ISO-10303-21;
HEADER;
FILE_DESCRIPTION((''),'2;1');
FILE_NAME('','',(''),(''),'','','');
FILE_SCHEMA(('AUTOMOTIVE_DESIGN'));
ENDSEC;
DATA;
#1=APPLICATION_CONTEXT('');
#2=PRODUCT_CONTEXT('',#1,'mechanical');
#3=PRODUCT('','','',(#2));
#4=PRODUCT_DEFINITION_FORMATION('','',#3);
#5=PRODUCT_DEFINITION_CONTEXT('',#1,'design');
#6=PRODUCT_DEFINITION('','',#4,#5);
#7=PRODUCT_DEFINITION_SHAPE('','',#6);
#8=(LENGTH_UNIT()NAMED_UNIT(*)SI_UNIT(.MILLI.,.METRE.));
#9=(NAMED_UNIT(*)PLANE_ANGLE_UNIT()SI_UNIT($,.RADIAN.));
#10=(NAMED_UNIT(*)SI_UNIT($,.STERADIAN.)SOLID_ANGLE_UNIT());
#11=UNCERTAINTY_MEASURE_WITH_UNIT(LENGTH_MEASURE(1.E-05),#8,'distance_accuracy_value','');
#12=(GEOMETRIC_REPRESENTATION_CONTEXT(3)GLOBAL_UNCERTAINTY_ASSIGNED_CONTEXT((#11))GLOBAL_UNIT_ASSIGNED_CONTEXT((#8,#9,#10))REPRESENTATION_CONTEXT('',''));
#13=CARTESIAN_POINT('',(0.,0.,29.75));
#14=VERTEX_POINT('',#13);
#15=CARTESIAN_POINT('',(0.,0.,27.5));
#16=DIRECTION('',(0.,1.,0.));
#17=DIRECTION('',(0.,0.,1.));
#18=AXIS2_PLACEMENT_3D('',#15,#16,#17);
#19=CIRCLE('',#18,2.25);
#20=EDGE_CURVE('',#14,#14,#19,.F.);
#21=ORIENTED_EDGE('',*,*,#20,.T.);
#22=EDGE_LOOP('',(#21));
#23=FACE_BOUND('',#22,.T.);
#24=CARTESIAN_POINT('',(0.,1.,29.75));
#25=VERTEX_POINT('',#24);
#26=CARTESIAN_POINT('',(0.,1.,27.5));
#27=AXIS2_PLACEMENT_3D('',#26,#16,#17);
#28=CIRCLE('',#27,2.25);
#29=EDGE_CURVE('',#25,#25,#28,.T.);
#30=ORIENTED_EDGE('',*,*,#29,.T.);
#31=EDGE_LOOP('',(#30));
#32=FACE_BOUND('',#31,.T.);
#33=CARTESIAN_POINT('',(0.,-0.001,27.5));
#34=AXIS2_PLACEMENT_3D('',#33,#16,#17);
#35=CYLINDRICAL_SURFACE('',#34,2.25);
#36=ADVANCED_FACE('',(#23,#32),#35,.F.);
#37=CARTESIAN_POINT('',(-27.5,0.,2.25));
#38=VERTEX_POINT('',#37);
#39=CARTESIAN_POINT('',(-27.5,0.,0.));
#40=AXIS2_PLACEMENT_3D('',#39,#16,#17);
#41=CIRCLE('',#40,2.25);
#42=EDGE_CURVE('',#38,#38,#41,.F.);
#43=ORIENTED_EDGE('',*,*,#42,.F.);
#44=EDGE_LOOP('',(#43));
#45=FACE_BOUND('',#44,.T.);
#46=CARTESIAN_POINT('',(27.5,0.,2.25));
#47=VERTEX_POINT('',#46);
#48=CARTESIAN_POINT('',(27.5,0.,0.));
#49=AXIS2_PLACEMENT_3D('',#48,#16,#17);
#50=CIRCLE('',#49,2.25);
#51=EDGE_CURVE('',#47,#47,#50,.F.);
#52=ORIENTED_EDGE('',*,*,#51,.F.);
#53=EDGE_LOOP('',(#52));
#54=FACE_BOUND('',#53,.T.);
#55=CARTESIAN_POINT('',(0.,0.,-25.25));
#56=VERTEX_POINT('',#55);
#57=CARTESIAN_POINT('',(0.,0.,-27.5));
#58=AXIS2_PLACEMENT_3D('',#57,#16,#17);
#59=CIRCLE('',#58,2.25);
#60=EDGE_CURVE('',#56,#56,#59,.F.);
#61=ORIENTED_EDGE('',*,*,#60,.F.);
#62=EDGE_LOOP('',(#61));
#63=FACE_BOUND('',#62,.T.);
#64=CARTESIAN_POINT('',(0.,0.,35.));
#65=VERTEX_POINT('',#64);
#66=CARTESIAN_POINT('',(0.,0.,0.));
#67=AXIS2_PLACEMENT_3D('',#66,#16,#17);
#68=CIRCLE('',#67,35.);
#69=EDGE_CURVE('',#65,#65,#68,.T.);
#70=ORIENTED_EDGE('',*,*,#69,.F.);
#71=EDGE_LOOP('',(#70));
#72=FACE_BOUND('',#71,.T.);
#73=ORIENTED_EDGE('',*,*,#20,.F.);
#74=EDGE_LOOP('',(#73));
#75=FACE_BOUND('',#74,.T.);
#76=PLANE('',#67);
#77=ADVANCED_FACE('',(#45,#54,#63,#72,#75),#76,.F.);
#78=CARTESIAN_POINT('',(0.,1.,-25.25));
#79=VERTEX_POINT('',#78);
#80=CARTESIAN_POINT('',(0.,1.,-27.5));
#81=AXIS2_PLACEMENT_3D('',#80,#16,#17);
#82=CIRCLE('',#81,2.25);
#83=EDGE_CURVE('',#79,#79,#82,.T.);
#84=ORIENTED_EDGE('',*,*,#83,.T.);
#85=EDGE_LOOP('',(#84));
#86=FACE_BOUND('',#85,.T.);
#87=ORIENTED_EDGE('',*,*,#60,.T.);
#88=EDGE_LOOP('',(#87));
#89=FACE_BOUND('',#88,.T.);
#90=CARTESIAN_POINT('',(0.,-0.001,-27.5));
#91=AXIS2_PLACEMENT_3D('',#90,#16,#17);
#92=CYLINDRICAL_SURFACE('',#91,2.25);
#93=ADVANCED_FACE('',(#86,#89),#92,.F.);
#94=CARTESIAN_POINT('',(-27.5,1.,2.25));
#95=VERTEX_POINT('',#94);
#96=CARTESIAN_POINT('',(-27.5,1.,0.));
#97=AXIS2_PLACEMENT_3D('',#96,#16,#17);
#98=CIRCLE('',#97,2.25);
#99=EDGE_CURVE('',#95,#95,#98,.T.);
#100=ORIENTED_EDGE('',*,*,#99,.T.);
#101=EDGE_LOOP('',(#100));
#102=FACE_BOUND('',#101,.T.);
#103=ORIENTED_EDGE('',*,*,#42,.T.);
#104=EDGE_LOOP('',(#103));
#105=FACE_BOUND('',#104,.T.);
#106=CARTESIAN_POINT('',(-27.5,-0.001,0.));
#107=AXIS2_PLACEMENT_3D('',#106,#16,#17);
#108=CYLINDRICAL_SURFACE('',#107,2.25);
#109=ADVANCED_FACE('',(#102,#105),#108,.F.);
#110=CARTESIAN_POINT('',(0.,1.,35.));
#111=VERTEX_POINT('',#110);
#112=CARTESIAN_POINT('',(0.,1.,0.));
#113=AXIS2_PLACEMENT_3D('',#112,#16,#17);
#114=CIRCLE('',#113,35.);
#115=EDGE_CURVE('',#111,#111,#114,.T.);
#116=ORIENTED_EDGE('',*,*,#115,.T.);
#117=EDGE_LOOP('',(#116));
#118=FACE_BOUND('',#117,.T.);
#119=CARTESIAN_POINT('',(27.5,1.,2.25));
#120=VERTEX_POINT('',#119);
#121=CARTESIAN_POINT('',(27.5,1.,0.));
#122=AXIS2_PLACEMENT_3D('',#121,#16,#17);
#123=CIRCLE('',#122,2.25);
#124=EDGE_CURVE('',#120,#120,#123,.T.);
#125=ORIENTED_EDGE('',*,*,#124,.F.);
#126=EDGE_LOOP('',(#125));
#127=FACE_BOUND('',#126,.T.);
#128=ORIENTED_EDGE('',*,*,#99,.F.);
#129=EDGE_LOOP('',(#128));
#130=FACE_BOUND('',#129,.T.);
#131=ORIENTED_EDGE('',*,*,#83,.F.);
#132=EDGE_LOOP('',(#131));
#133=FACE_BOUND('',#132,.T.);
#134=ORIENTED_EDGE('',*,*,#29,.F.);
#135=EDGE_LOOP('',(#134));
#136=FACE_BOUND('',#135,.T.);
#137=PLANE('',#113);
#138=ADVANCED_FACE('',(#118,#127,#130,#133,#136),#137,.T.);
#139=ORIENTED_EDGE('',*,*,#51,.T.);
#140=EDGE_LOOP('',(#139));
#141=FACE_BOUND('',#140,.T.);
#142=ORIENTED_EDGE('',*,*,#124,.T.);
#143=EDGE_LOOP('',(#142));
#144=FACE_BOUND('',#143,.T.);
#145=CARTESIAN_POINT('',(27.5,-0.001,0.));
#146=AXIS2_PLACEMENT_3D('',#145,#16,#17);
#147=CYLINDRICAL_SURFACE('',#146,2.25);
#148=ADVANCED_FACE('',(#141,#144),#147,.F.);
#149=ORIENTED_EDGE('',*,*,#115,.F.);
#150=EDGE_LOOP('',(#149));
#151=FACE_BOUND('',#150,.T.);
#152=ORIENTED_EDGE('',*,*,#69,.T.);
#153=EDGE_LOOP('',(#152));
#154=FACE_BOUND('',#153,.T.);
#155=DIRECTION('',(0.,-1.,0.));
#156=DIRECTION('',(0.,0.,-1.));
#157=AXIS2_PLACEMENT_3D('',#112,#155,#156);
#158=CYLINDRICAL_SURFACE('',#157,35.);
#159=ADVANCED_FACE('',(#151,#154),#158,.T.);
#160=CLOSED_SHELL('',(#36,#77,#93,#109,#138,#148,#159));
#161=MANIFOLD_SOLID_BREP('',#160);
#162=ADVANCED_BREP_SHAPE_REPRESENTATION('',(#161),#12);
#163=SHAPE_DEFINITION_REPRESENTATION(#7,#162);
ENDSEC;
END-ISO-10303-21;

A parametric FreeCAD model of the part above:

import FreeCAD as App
import Part
import Sketcher

V = App.Vector
Q = App.Units.Quantity

doc = App.newDocument("Part")
body = doc.addObject("PartDesign::Body", "Body")

# Sketch on XZ plane
sketch1 = body.newObject("Sketcher::SketchObject", "Sketch")
sketch1.AttachmentSupport = (doc.getObject("XZ_Plane"), [""])
sketch1.MapMode = "FlatFace"
sketch1.addGeometry(Part.Circle(V(0, 0, 0), V(0, 0, 1), 35), False)
sketch1.addGeometry(Part.Circle(V(0, 0, 0), V(0, 0, 1), 20), False)
sketch1.addConstraint(Sketcher.Constraint("Coincident", 0, 3, -1, 1))
sketch1.addConstraint(Sketcher.Constraint("Coincident", 1, 3, -1, 1))
sketch1.addConstraint(Sketcher.Constraint("Diameter", 0, Q("70 mm")))
sketch1.addConstraint(Sketcher.Constraint("Diameter", 1, Q("40 mm")))
pad1 = body.newObject("PartDesign::Pad", "Pad")
pad1.Profile = sketch1
pad1.Length = 1
pad1.Reversed = True

# Sketch on XZ plane
sketch2 = body.newObject("Sketcher::SketchObject", "Sketch001")
sketch2.AttachmentSupport = (doc.getObject("XZ_Plane"), [""])
sketch2.MapMode = "FlatFace"
sketch2.addGeometry(Part.Circle(V(0, 0, 0), V(0, 0, 1), 20), False)
sketch2.addConstraint(Sketcher.Constraint("Coincident", 0, 3, -1, 1))
sketch2.addConstraint(Sketcher.Constraint("Diameter", 0, Q("40 mm")))
pad2 = body.newObject("PartDesign::Pad", "Pad001")
pad2.Profile = sketch2
pad2.Length = 1
pad2.Reversed = True

# Sketch on XZ plane
sketch3 = body.newObject("Sketcher::SketchObject", "Sketch002")
sketch3.AttachmentSupport = (doc.getObject("XZ_Plane"), [""])
sketch3.MapMode = "FlatFace"
sketch3.AttachmentOffset = App.Placement(V(0, 0, -1), App.Rotation())
sketch3.addGeometry(Part.Circle(V(0, -27.5, 0), V(0, 0, 1), 2.2), False)
sketch3.addConstraint(Sketcher.Constraint("PointOnObject", 0, 3, -2))
sketch3.addConstraint(Sketcher.Constraint("Diameter", 0, Q("4.5 mm")))
sketch3.addConstraint(Sketcher.Constraint("DistanceY", 0, 3, -1, 1, Q("27.5 mm")))
pocket1 = body.newObject("PartDesign::Pocket", "Pocket")
pocket1.Profile = sketch3
pocket1.Type = "UpToFirst"
pocket1.Reversed = True

# Sketch on XZ plane
sketch4 = body.newObject("Sketcher::SketchObject", "Sketch003")
sketch4.AttachmentSupport = (doc.getObject("XZ_Plane"), [""])
sketch4.MapMode = "FlatFace"
sketch4.AttachmentOffset = App.Placement(V(0, 0, -1), App.Rotation())
sketch4.addGeometry(Part.Circle(V(27.5, 0, 0), V(0, 0, 1), 2.2), False)
sketch4.addConstraint(Sketcher.Constraint("PointOnObject", 0, 3, -1))
sketch4.addConstraint(Sketcher.Constraint("Diameter", 0, Q("4.5 mm")))
sketch4.addConstraint(Sketcher.Constraint("DistanceX", -1, 1, 0, 3, Q("27.5 mm")))
pocket2 = body.newObject("PartDesign::Pocket", "Pocket001")
pocket2.Profile = sketch4
pocket2.Type = "UpToFirst"
pocket2.Reversed = True

# Sketch on XZ plane
sketch5 = body.newObject("Sketcher::SketchObject", "Sketch004")
sketch5.AttachmentSupport = (doc.getObject("XZ_Plane"), [""])
sketch5.MapMode = "FlatFace"
sketch5.AttachmentOffset = App.Placement(V(0, 0, -1), App.Rotation())
sketch5.addGeometry(Part.Circle(V(0, 27.5, 0), V(0, 0, 1), 2.2), False)
sketch5.addConstraint(Sketcher.Constraint("PointOnObject", 0, 3, -2))
sketch5.addConstraint(Sketcher.Constraint("Diameter", 0, Q("4.5 mm")))
sketch5.addConstraint(Sketcher.Constraint("DistanceY", -1, 1, 0, 3, Q("27.5 mm")))
pocket3 = body.newObject("PartDesign::Pocket", "Pocket002")
pocket3.Profile = sketch5
pocket3.Type = "UpToFirst"
pocket3.Reversed = True

# Sketch on XZ plane
sketch6 = body.newObject("Sketcher::SketchObject", "Sketch005")
sketch6.AttachmentSupport = (doc.getObject("XZ_Plane"), [""])
sketch6.MapMode = "FlatFace"
sketch6.AttachmentOffset = App.Placement(V(0, 0, -1), App.Rotation())
sketch6.addGeometry(Part.Circle(V(-27.5, 0, 0), V(0, 0, 1), 2.2), False)
sketch6.addConstraint(Sketcher.Constraint("PointOnObject", 0, 3, -1))
sketch6.addConstraint(Sketcher.Constraint("Diameter", 0, Q("4.5 mm")))
sketch6.addConstraint(Sketcher.Constraint("DistanceX", 0, 3, -1, 1, Q("27.5 mm")))
pocket4 = body.newObject("PartDesign::Pocket", "Pocket003")
pocket4.Profile = sketch6
pocket4.Type = "UpToFirst"
pocket4.Reversed = True

doc.recompute()
